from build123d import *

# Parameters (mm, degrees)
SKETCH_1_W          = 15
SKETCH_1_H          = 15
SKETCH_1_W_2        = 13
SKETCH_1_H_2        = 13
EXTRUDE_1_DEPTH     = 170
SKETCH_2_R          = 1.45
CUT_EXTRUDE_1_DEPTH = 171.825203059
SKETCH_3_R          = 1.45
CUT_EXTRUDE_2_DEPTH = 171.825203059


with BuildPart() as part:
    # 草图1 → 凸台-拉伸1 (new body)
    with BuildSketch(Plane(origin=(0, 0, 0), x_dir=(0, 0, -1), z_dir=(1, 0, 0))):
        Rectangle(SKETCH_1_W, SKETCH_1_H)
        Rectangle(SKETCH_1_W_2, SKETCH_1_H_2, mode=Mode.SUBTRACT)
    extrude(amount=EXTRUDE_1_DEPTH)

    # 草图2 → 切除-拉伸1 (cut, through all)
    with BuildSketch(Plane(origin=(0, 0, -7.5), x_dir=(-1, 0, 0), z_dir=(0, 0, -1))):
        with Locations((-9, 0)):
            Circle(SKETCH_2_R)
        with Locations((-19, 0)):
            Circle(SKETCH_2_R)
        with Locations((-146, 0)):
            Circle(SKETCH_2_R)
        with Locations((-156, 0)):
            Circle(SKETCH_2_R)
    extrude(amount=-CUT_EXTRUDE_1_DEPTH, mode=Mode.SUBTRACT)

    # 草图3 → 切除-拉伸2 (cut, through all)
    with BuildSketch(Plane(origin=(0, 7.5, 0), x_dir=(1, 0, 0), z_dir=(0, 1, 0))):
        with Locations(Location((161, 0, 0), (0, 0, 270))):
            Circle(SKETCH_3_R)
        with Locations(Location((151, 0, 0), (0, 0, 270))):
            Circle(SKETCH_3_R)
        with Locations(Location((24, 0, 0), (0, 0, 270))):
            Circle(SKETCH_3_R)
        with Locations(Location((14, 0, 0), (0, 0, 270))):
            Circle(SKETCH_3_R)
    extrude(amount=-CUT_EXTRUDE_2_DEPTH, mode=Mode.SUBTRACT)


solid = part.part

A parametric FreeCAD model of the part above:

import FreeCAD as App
import Part
import Sketcher
Q = App.Units.Quantity

doc = App.newDocument("Part")
body = doc.addObject("PartDesign::Body", "Body")

# Sketch on YZ plane
sketch1 = doc.addObject("Sketcher::SketchObject", "Sketch")
body.addObject(sketch1)
sketch1.AttachmentSupport = (doc.YZ_Plane, [""])
sketch1.MapMode = "FlatFace"
sketch1.addGeometry([
    Part.LineSegment(App.Vector(8, 8, 0), App.Vector(-8, 8, 0)),  # 0
    Part.LineSegment(App.Vector(-8, 8, 0), App.Vector(-8, -8, 0)),  # 1
    Part.LineSegment(App.Vector(-8, -8, 0), App.Vector(8, -8, 0)),  # 2
    Part.LineSegment(App.Vector(8, -8, 0), App.Vector(8, 8, 0)),  # 3
    Part.LineSegment(App.Vector(-6, -6, 0), App.Vector(-6, 6, 0)),  # 4
    Part.LineSegment(App.Vector(-6, 6, 0), App.Vector(6, 6, 0)),  # 5
    Part.LineSegment(App.Vector(6, 6, 0), App.Vector(6, -6, 0)),  # 6
    Part.LineSegment(App.Vector(6, -6, 0), App.Vector(-6, -6, 0)),  # 7
], False)
sketch1.addConstraint([
    Sketcher.Constraint("Coincident", 0, 2, 1, 1),
    Sketcher.Constraint("Coincident", 1, 2, 2, 1),
    Sketcher.Constraint("Coincident", 2, 2, 3, 1),
    Sketcher.Constraint("Coincident", 3, 2, 0, 1),
    Sketcher.Constraint("Coincident", 4, 2, 5, 1),
    Sketcher.Constraint("Coincident", 5, 2, 6, 1),
    Sketcher.Constraint("Coincident", 6, 2, 7, 1),
    Sketcher.Constraint("Coincident", 7, 2, 4, 1),
    Sketcher.Constraint("Horizontal", 0),
    Sketcher.Constraint("Vertical", 1),
    Sketcher.Constraint("Horizontal", 2),
    Sketcher.Constraint("Vertical", 3),
    Sketcher.Constraint("Vertical", 4),
    Sketcher.Constraint("Horizontal", 5),
    Sketcher.Constraint("Vertical", 6),
    Sketcher.Constraint("Horizontal", 7),
    Sketcher.Constraint("Symmetric", 0, 2, 2, 2, -1, 1),
    Sketcher.Constraint("Symmetric", 4, 2, 6, 2, -1, 1),
    Sketcher.Constraint("Equal", 2, 1),
    Sketcher.Constraint("Equal", 7, 4),
    Sketcher.Constraint("DistanceX", 0, 2, 0, 1, Q("15 mm")),
    Sketcher.Constraint("DistanceX", 5, 1, 5, 2, Q("13 mm")),
])
pad1 = doc.addObject("PartDesign::Pad", "Pad")
body.addObject(pad1)
pad1.Profile = sketch1
pad1.Length = 170

# Sketch on XY plane
sketch2 = doc.addObject("Sketcher::SketchObject", "Sketch001")
body.addObject(sketch2)
sketch2.AttachmentSupport = (doc.XY_Plane, [""])
sketch2.MapMode = "FlatFace"
sketch2.AttachmentOffset = App.Placement(App.Vector(0, 0, -7.5), App.Rotation())
sketch2.addGeometry([
    Part.Circle(App.Vector(9, 0, 0), App.Vector(0, 0, 1), 1.4),
    Part.Circle(App.Vector(19, 0, 0), App.Vector(0, 0, 1), 1.4),
    Part.Circle(App.Vector(146, 0, 0), App.Vector(0, 0, 1), 1.4),
    Part.Circle(App.Vector(156, 0, 0), App.Vector(0, 0, 1), 1.4),
], False)
sketch2.addConstraint([
    Sketcher.Constraint("Equal", 0, 1),
    Sketcher.Constraint("Equal", 1, 2),
    Sketcher.Constraint("Equal", 2, 3),
    Sketcher.Constraint("PointOnObject", 0, 3, -1),
    Sketcher.Constraint("PointOnObject", 1, 3, -1),
    Sketcher.Constraint("PointOnObject", 2, 3, -1),
    Sketcher.Constraint("PointOnObject", 3, 3, -1),
    Sketcher.Constraint("Diameter", 0, Q("2.9 mm")),
    Sketcher.Constraint("DistanceX", -1, 1, 0, 3, Q("9 mm")),
    Sketcher.Constraint("DistanceX", -1, 1, 1, 3, Q("19 mm")),
    Sketcher.Constraint("DistanceX", -1, 1, 2, 3, Q("146 mm")),
    Sketcher.Constraint("DistanceX", -1, 1, 3, 3, Q("156 mm")),
])
pocket1 = doc.addObject("PartDesign::Pocket", "Pocket")
body.addObject(pocket1)
pocket1.Profile = sketch2
pocket1.Type = "ThroughAll"
pocket1.Reversed = True

# Sketch on XZ plane
sketch3 = doc.addObject("Sketcher::SketchObject", "Sketch002")
body.addObject(sketch3)
sketch3.AttachmentSupport = (doc.XZ_Plane, [""])
sketch3.MapMode = "FlatFace"
sketch3.AttachmentOffset = App.Placement(App.Vector(0, 0, -7.5), App.Rotation())
sketch3.addGeometry([
    Part.Circle(App.Vector(161, 0, 0), App.Vector(0, 0, 1), 1.4),
    Part.Circle(App.Vector(151, 0, 0), App.Vector(0, 0, 1), 1.4),
    Part.Circle(App.Vector(24, 0, 0), App.Vector(0, 0, 1), 1.4),
    Part.Circle(App.Vector(14, 0, 0), App.Vector(0, 0, 1), 1.4),
], False)
sketch3.addConstraint([
    Sketcher.Constraint("Equal", 0, 1),
    Sketcher.Constraint("Equal", 1, 2),
    Sketcher.Constraint("Equal", 2, 3),
    Sketcher.Constraint("PointOnObject", 0, 3, -1),
    Sketcher.Constraint("PointOnObject", 1, 3, -1),
    Sketcher.Constraint("PointOnObject", 2, 3, -1),
    Sketcher.Constraint("PointOnObject", 3, 3, -1),
    Sketcher.Constraint("Diameter", 0, Q("2.9 mm")),
    Sketcher.Constraint("DistanceX", -1, 1, 0, 3, Q("161 mm")),
    Sketcher.Constraint("DistanceX", -1, 1, 1, 3, Q("151 mm")),
    Sketcher.Constraint("DistanceX", -1, 1, 2, 3, Q("24 mm")),
    Sketcher.Constraint("DistanceX", -1, 1, 3, 3, Q("14 mm")),
])
pocket2 = doc.addObject("PartDesign::Pocket", "Pocket001")
body.addObject(pocket2)
pocket2.Profile = sketch3
pocket2.Type = "ThroughAll"
pocket2.Reversed = True

doc.recompute()
